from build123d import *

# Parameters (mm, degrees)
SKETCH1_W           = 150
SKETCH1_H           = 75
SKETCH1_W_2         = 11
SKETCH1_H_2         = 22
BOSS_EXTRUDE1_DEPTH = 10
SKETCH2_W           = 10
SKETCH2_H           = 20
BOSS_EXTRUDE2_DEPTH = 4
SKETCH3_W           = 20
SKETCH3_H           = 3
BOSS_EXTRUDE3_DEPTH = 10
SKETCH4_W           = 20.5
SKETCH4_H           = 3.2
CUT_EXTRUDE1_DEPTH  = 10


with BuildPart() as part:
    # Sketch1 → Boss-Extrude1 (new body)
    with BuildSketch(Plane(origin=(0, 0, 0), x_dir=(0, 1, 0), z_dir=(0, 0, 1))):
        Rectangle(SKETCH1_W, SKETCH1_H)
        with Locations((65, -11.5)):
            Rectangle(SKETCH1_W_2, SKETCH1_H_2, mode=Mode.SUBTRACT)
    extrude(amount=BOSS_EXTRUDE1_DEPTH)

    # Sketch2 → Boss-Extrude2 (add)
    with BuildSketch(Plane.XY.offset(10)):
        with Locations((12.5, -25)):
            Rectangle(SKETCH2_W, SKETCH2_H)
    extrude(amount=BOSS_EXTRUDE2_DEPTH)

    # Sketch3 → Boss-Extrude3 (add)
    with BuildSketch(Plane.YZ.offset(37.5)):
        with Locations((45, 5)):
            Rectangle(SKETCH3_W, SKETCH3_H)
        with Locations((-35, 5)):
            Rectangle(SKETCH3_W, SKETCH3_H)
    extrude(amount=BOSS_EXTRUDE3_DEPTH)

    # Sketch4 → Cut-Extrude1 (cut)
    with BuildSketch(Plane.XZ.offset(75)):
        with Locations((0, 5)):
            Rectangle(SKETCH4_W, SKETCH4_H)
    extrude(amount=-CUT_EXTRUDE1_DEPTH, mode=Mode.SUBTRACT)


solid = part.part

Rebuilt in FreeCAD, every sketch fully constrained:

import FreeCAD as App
import Part
import Sketcher

V = App.Vector


def add_polygon(sketch, points):
    """Adds a closed chain of lines whose ends are joined by coincident constraints."""
    first, n = sketch.GeometryCount, len(points)
    for a, b in zip(points, points[1:] + points[:1]):
        sketch.addGeometry(Part.LineSegment(App.Vector(*a, 0), App.Vector(*b, 0)), False)
    for i in range(n):
        sketch.addConstraint(Sketcher.Constraint("Coincident", first + i, 2, first + (i + 1) % n, 1))

doc = App.newDocument("Part")
body = doc.addObject("PartDesign::Body", "Body")

sketch1 = doc.addObject("Sketcher::SketchObject", "Sketch")
body.addObject(sketch1)
sketch1.AttachmentSupport = (doc.XY_Plane, [""])
sketch1.MapMode = "FlatFace"
add_polygon(sketch1, [(-38, -75), (38, -75), (38, 75), (-38, 75)])
add_polygon(sketch1, [(22, 70), (22, 60), (0, 60), (0, 70)])
sketch1.addConstraint(Sketcher.Constraint("Horizontal", 0))
sketch1.addConstraint(Sketcher.Constraint("Vertical", 1))
sketch1.addConstraint(Sketcher.Constraint("Horizontal", 2))
sketch1.addConstraint(Sketcher.Constraint("Vertical", 3))
sketch1.addConstraint(Sketcher.Constraint("Vertical", 4))
sketch1.addConstraint(Sketcher.Constraint("Horizontal", 5))
sketch1.addConstraint(Sketcher.Constraint("Vertical", 6))
sketch1.addConstraint(Sketcher.Constraint("Horizontal", 7))
sketch1.addConstraint(Sketcher.Constraint("Symmetric", 0, 2, 2, 2, -1, 1))
sketch1.addConstraint(Sketcher.Constraint("DistanceX", 0, 1, 0, 2, 75.0))
sketch1.addConstraint(Sketcher.Constraint("DistanceX", 5, 2, 5, 1, 22.0))
sketch1.addConstraint(Sketcher.Constraint("DistanceY", 1, 1, 1, 2, 150.0))
sketch1.addConstraint(Sketcher.Constraint("DistanceY", 4, 2, 4, 1, 11.0))
sketch1.addConstraint(Sketcher.Constraint("DistanceX", 4, 2, 1, 2, 15.0))
sketch1.addConstraint(Sketcher.Constraint("DistanceY", -1, 1, 4, 2, 59.5))
pad1 = doc.addObject("PartDesign::Pad", "Pad")
body.addObject(pad1)
pad1.Profile = sketch1
pad1.Length = 10

sketch2 = doc.addObject("Sketcher::SketchObject", "Sketch001")
body.addObject(sketch2)
sketch2.AttachmentSupport = (doc.XY_Plane, [""])
sketch2.MapMode = "FlatFace"
sketch2.AttachmentOffset = App.Placement(V(0, 0, 10), App.Rotation())
add_polygon(sketch2, [(8, -15), (8, -35), (18, -35), (18, -15)])
sketch2.addConstraint(Sketcher.Constraint("Vertical", 0))
sketch2.addConstraint(Sketcher.Constraint("Horizontal", 1))
sketch2.addConstraint(Sketcher.Constraint("Vertical", 2))
sketch2.addConstraint(Sketcher.Constraint("Horizontal", 3))
sketch2.addConstraint(Sketcher.Constraint("DistanceX", 1, 1, 1, 2, 10.0))
sketch2.addConstraint(Sketcher.Constraint("DistanceY", 0, 2, 0, 1, 20.0))
sketch2.addConstraint(Sketcher.Constraint("DistanceY", 0, 2, -1, 1, 35.0))
sketch2.addConstraint(Sketcher.Constraint("DistanceX", -1, 1, 0, 2, 7.5))
pad2 = doc.addObject("PartDesign::Pad", "Pad001")
body.addObject(pad2)
pad2.Profile = sketch2
pad2.Length = 4

sketch3 = doc.addObject("Sketcher::SketchObject", "Sketch002")
body.addObject(sketch3)
sketch3.AttachmentSupport = (doc.YZ_Plane, [""])
sketch3.MapMode = "FlatFace"
sketch3.AttachmentOffset = App.Placement(V(0, 0, 37.5), App.Rotation())
add_polygon(sketch3, [(35, 6.5), (35, 3.5), (55, 3.5), (55, 6.5)])
add_polygon(sketch3, [(-45, 6.5), (-45, 3.5), (-25, 3.5), (-25, 6.5)])
sketch3.addConstraint(Sketcher.Constraint("Vertical", 0))
sketch3.addConstraint(Sketcher.Constraint("Horizontal", 1))
sketch3.addConstraint(Sketcher.Constraint("Vertical", 2))
sketch3.addConstraint(Sketcher.Constraint("Horizontal", 3))
sketch3.addConstraint(Sketcher.Constraint("Vertical", 4))
sketch3.addConstraint(Sketcher.Constraint("Horizontal", 5))
sketch3.addConstraint(Sketcher.Constraint("Vertical", 6))
sketch3.addConstraint(Sketcher.Constraint("Horizontal", 7))
sketch3.addConstraint(Sketcher.Constraint("Horizontal", 1, 2, 4, 2))
sketch3.addConstraint(Sketcher.Constraint("Horizontal", 3, 2, 6, 2))
sketch3.addConstraint(Sketcher.Constraint("Equal", 3, 5))
sketch3.addConstraint(Sketcher.Constraint("DistanceX", 1, 1, 1, 2, 20.0))
sketch3.addConstraint(Sketcher.Constraint("DistanceY", 0, 2, 0, 1, 3.0))
sketch3.addConstraint(Sketcher.Constraint("DistanceX", -1, 1, 0, 2, 35.0))
sketch3.addConstraint(Sketcher.Constraint("DistanceX", 4, 2, -1, 1, 45.0))
sketch3.addConstraint(Sketcher.Constraint("DistanceY", -1, 1, 0, 2, 3.5))
pad3 = doc.addObject("PartDesign::Pad", "Pad002")
body.addObject(pad3)
pad3.Profile = sketch3
pad3.Length = 10

sketch4 = doc.addObject("Sketcher::SketchObject", "Sketch003")
body.addObject(sketch4)
sketch4.AttachmentSupport = (doc.XZ_Plane, [""])
sketch4.MapMode = "FlatFace"
sketch4.AttachmentOffset = App.Placement(V(0, 0, 75), App.Rotation())
add_polygon(sketch4, [(-10.2, 6.6), (-10.2, 3.4), (10.2, 3.4), (10.2, 6.6)])
sketch4.addConstraint(Sketcher.Constraint("Vertical", 0))
sketch4.addConstraint(Sketcher.Constraint("Horizontal", 1))
sketch4.addConstraint(Sketcher.Constraint("Vertical", 2))
sketch4.addConstraint(Sketcher.Constraint("Horizontal", 3))
sketch4.addConstraint(Sketcher.Constraint("DistanceX", 1, 1, 1, 2, 20.5))
sketch4.addConstraint(Sketcher.Constraint("DistanceY", 0, 2, 0, 1, 3.2))
sketch4.addConstraint(Sketcher.Constraint("DistanceY", -1, 1, 0, 2, 3.4))
sketch4.addConstraint(Sketcher.Constraint("DistanceX", 0, 2, -1, 1, 10.25))
pocket1 = doc.addObject("PartDesign::Pocket", "Pocket")
body.addObject(pocket1)
pocket1.Profile = sketch4
pocket1.Length = 10

doc.recompute()
